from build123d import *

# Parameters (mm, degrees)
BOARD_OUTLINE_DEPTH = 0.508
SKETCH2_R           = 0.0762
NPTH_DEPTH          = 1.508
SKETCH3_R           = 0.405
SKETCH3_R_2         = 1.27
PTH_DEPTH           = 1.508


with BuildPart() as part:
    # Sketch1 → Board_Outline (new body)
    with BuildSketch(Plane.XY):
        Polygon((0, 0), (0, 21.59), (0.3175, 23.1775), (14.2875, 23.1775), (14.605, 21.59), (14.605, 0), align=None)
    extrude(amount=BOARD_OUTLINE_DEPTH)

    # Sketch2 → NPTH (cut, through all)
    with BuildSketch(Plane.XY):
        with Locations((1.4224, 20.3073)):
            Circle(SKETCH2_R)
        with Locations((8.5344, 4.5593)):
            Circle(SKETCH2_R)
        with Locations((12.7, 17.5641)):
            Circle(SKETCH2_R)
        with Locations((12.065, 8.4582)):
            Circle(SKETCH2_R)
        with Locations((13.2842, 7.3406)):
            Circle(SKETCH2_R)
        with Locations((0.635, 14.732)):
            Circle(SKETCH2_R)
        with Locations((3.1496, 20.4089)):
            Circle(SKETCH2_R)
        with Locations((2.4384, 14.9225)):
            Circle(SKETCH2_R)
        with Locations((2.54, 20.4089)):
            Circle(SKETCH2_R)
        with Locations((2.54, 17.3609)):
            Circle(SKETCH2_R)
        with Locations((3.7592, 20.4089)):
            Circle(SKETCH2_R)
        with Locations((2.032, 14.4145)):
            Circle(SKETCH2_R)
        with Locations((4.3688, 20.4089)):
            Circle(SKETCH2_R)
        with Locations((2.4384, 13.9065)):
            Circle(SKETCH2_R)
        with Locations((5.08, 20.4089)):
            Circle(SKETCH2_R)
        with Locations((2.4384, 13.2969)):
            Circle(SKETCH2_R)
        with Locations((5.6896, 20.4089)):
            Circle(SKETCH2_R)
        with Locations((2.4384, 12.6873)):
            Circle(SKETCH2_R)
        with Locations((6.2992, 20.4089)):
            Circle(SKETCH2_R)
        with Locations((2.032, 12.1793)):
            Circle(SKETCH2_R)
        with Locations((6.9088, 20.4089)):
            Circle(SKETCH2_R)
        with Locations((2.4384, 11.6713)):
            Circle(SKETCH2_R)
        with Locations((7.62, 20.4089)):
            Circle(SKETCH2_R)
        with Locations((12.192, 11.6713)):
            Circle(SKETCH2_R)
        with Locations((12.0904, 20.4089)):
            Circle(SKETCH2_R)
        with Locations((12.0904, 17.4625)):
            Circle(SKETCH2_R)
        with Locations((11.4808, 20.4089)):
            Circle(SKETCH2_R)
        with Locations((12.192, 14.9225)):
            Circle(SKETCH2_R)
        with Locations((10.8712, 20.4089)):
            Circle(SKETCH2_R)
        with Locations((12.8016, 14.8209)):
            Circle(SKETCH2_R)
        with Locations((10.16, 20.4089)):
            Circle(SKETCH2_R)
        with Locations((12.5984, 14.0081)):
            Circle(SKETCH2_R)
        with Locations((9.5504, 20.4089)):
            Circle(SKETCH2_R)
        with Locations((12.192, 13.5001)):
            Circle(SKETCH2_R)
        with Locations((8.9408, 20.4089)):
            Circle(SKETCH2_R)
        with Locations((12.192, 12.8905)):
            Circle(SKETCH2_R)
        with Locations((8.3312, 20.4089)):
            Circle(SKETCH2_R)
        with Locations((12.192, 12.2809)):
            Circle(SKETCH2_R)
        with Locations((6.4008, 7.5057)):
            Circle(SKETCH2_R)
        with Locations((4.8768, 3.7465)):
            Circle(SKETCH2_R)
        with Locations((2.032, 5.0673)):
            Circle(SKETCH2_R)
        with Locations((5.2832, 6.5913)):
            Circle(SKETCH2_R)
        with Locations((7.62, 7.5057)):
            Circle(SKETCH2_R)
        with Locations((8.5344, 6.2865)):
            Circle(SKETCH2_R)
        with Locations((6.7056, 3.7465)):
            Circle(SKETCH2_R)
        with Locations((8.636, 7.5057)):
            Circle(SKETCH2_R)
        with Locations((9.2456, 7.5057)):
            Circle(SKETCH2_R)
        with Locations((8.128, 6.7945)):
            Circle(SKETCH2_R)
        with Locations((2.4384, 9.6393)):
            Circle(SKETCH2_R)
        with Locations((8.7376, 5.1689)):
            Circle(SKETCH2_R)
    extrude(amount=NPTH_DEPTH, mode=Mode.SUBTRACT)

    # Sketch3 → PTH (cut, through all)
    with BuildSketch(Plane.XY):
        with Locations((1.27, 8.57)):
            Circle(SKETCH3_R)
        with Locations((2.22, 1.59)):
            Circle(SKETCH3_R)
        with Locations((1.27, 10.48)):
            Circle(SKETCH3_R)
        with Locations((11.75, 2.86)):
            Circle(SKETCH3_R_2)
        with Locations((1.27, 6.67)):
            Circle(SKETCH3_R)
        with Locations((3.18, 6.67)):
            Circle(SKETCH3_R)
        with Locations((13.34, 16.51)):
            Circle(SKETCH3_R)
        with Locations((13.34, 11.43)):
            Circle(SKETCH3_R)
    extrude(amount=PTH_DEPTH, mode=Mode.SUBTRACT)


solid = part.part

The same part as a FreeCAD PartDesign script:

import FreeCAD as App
import Part
import Sketcher
from FreeCAD import Vector
Q = App.Units.Quantity

doc = App.newDocument("Part")
body = doc.addObject("PartDesign::Body", "Body")

# Sketch on XY plane
sketch1 = body.newObject("Sketcher::SketchObject", "Sketch")
sketch1.AttachmentSupport = (doc.getObject("XY_Plane"), [""])
sketch1.MapMode = "FlatFace"
sketch1.addGeometry([
    Part.LineSegment(Vector(0, 21.59, 0), Vector(0, 0, 0)),  # 0
    Part.LineSegment(Vector(0, 0, 0), Vector(14.605, 0, 0)),  # 1
    Part.LineSegment(Vector(14.605, 0, 0), Vector(14.605, 21.59, 0)),  # 2
    Part.LineSegment(Vector(14.605, 21.59, 0), Vector(14.2875, 23.1775, 0)),  # 3
    Part.LineSegment(Vector(14.2875, 23.1775, 0), Vector(0.3175, 23.1775, 0)),  # 4
    Part.LineSegment(Vector(0.3175, 23.1775, 0), Vector(0, 21.59, 0)),  # 5
], False)
sketch1.addConstraint([
    Sketcher.Constraint("Coincident", 0, 2, 1, 1),
    Sketcher.Constraint("Coincident", 1, 2, 2, 1),
    Sketcher.Constraint("Coincident", 2, 2, 3, 1),
    Sketcher.Constraint("Coincident", 3, 2, 4, 1),
    Sketcher.Constraint("Coincident", 4, 2, 5, 1),
    Sketcher.Constraint("Coincident", 5, 2, 0, 1),
    Sketcher.Constraint("Vertical", 0),
    Sketcher.Constraint("Horizontal", 1),
    Sketcher.Constraint("Vertical", 2),
    Sketcher.Constraint("Horizontal", 4),
    Sketcher.Constraint("Coincident", 0, 2, -1, 1),
    Sketcher.Constraint("Horizontal", 2, 2, 5, 2),
    Sketcher.Constraint("Equal", 3, 5),
    Sketcher.Constraint("DistanceX", 4, 2, 4, 1, Q("0.55 in")),
    Sketcher.Constraint("DistanceY", 0, 2, 0, 1, Q("0.85 in")),
    Sketcher.Constraint("DistanceX", 1, 1, 1, 2, Q("0.575 in")),
    Sketcher.Constraint("DistanceY", 2, 2, 3, 2, Q("0.0625 in")),
])
pad1 = body.newObject("PartDesign::Pad", "Pad")
pad1.Profile = sketch1
pad1.Length = Q("0.02 in")

# Sketch on XY plane
sketch2 = body.newObject("Sketcher::SketchObject", "Sketch001")
sketch2.AttachmentSupport = (doc.getObject("XY_Plane"), [""])
sketch2.MapMode = "FlatFace"
sketch2.addGeometry([
    Part.Circle(Vector(1.4224, 20.3073, 0), Vector(0, 0, 1), 0.0762),  # 0
    Part.Circle(Vector(8.5344, 4.5593, 0), Vector(0, 0, 1), 0.0762),  # 1
    Part.Circle(Vector(12.7, 17.5641, 0), Vector(0, 0, 1), 0.0762),  # 2
    Part.Circle(Vector(12.065, 8.4582, 0), Vector(0, 0, 1), 0.0762),  # 3
    Part.Circle(Vector(13.2842, 7.3406, 0), Vector(0, 0, 1), 0.0762),  # 4
    Part.Circle(Vector(0.635, 14.732, 0), Vector(0, 0, 1), 0.0762),  # 5
    Part.Circle(Vector(3.1496, 20.4089, 0), Vector(0, 0, 1), 0.0762),  # 6
    Part.Circle(Vector(2.4384, 14.9225, 0), Vector(0, 0, 1), 0.0762),  # 7
    Part.Circle(Vector(2.54, 20.4089, 0), Vector(0, 0, 1), 0.0762),  # 8
    Part.Circle(Vector(2.54, 17.3609, 0), Vector(0, 0, 1), 0.0762),  # 9
    Part.Circle(Vector(3.7592, 20.4089, 0), Vector(0, 0, 1), 0.0762),  # 10
    Part.Circle(Vector(2.032, 14.4145, 0), Vector(0, 0, 1), 0.0762),  # 11
    Part.Circle(Vector(4.3688, 20.4089, 0), Vector(0, 0, 1), 0.0762),  # 12
    Part.Circle(Vector(2.4384, 13.9065, 0), Vector(0, 0, 1), 0.0762),  # 13
    Part.Circle(Vector(5.08, 20.4089, 0), Vector(0, 0, 1), 0.0762),  # 14
    Part.Circle(Vector(2.4384, 13.2969, 0), Vector(0, 0, 1), 0.0762),  # 15
    Part.Circle(Vector(5.6896, 20.4089, 0), Vector(0, 0, 1), 0.0762),  # 16
    Part.Circle(Vector(2.4384, 12.6873, 0), Vector(0, 0, 1), 0.0762),  # 17
    Part.Circle(Vector(6.2992, 20.4089, 0), Vector(0, 0, 1), 0.0762),  # 18
    Part.Circle(Vector(2.032, 12.1793, 0), Vector(0, 0, 1), 0.0762),  # 19
    Part.Circle(Vector(6.9088, 20.4089, 0), Vector(0, 0, 1), 0.0762),  # 20
    Part.Circle(Vector(2.4384, 11.6713, 0), Vector(0, 0, 1), 0.0762),  # 21
    Part.Circle(Vector(7.62, 20.4089, 0), Vector(0, 0, 1), 0.0762),  # 22
    Part.Circle(Vector(12.192, 11.6713, 0), Vector(0, 0, 1), 0.0762),  # 23
    Part.Circle(Vector(12.0904, 20.4089, 0), Vector(0, 0, 1), 0.0762),  # 24
    Part.Circle(Vector(12.0904, 17.4625, 0), Vector(0, 0, 1), 0.0762),  # 25
    Part.Circle(Vector(11.4808, 20.4089, 0), Vector(0, 0, 1), 0.0762),  # 26
    Part.Circle(Vector(12.192, 14.9225, 0), Vector(0, 0, 1), 0.0762),  # 27
    Part.Circle(Vector(10.8712, 20.4089, 0), Vector(0, 0, 1), 0.0762),  # 28
    Part.Circle(Vector(12.8016, 14.8209, 0), Vector(0, 0, 1), 0.0762),  # 29
    Part.Circle(Vector(10.16, 20.4089, 0), Vector(0, 0, 1), 0.0762),  # 30
    Part.Circle(Vector(12.5984, 14.0081, 0), Vector(0, 0, 1), 0.0762),  # 31
    Part.Circle(Vector(9.5504, 20.4089, 0), Vector(0, 0, 1), 0.0762),  # 32
    Part.Circle(Vector(12.192, 13.5001, 0), Vector(0, 0, 1), 0.0762),  # 33
    Part.Circle(Vector(8.9408, 20.4089, 0), Vector(0, 0, 1), 0.0762),  # 34
    Part.Circle(Vector(12.192, 12.8905, 0), Vector(0, 0, 1), 0.0762),  # 35
    Part.Circle(Vector(8.3312, 20.4089, 0), Vector(0, 0, 1), 0.0762),  # 36
    Part.Circle(Vector(12.192, 12.2809, 0), Vector(0, 0, 1), 0.0762),  # 37
    Part.Circle(Vector(6.4008, 7.5057, 0), Vector(0, 0, 1), 0.0762),  # 38
    Part.Circle(Vector(4.8768, 3.7465, 0), Vector(0, 0, 1), 0.0762),  # 39
    Part.Circle(Vector(2.032, 5.0673, 0), Vector(0, 0, 1), 0.0762),  # 40
    Part.Circle(Vector(5.2832, 6.5913, 0), Vector(0, 0, 1), 0.0762),  # 41
    Part.Circle(Vector(7.62, 7.5057, 0), Vector(0, 0, 1), 0.0762),  # 42
    Part.Circle(Vector(8.5344, 6.2865, 0), Vector(0, 0, 1), 0.0762),  # 43
    Part.Circle(Vector(6.7056, 3.7465, 0), Vector(0, 0, 1), 0.0762),  # 44
    Part.Circle(Vector(8.636, 7.5057, 0), Vector(0, 0, 1), 0.0762),  # 45
    Part.Circle(Vector(9.2456, 7.5057, 0), Vector(0, 0, 1), 0.0762),  # 46
    Part.Circle(Vector(8.128, 6.7945, 0), Vector(0, 0, 1), 0.0762),  # 47
    Part.Circle(Vector(2.4384, 9.6393, 0), Vector(0, 0, 1), 0.0762),  # 48
    Part.Circle(Vector(8.7376, 5.1689, 0), Vector(0, 0, 1), 0.0762),  # 49
], False)
sketch2.addConstraint([
    Sketcher.Constraint("Equal", 0, 1),
    Sketcher.Constraint("Equal", 1, 2),
    Sketcher.Constraint("Equal", 2, 3),
    Sketcher.Constraint("Equal", 3, 4),
    Sketcher.Constraint("Equal", 4, 5),
    Sketcher.Constraint("Equal", 5, 6),
    Sketcher.Constraint("Equal", 6, 7),
    Sketcher.Constraint("Equal", 7, 8),
    Sketcher.Constraint("Equal", 8, 9),
    Sketcher.Constraint("Equal", 9, 10),
    Sketcher.Constraint("Equal", 10, 11),
    Sketcher.Constraint("Equal", 11, 12),
    Sketcher.Constraint("Equal", 12, 13),
    Sketcher.Constraint("Equal", 13, 14),
    Sketcher.Constraint("Equal", 14, 15),
    Sketcher.Constraint("Equal", 15, 16),
    Sketcher.Constraint("Equal", 16, 17),
    Sketcher.Constraint("Equal", 17, 18),
    Sketcher.Constraint("Equal", 18, 19),
    Sketcher.Constraint("Equal", 19, 20),
    Sketcher.Constraint("Equal", 20, 21),
    Sketcher.Constraint("Equal", 21, 22),
    Sketcher.Constraint("Equal", 22, 23),
    Sketcher.Constraint("Equal", 23, 24),
    Sketcher.Constraint("Equal", 24, 25),
    Sketcher.Constraint("Equal", 25, 26),
    Sketcher.Constraint("Equal", 26, 27),
    Sketcher.Constraint("Equal", 27, 28),
    Sketcher.Constraint("Equal", 28, 29),
    Sketcher.Constraint("Equal", 29, 30),
    Sketcher.Constraint("Equal", 30, 31),
    Sketcher.Constraint("Equal", 31, 32),
    Sketcher.Constraint("Equal", 32, 33),
    Sketcher.Constraint("Equal", 33, 34),
    Sketcher.Constraint("Equal", 34, 35),
    Sketcher.Constraint("Equal", 35, 36),
    Sketcher.Constraint("Equal", 36, 37),
    Sketcher.Constraint("Equal", 37, 38),
    Sketcher.Constraint("Equal", 38, 39),
    Sketcher.Constraint("Equal", 39, 40),
    Sketcher.Constraint("Equal", 40, 41),
    Sketcher.Constraint("Equal", 41, 42),
    Sketcher.Constraint("Equal", 42, 43),
    Sketcher.Constraint("Equal", 43, 44),
    Sketcher.Constraint("Equal", 44, 45),
    Sketcher.Constraint("Equal", 45, 46),
    Sketcher.Constraint("Equal", 46, 47),
    Sketcher.Constraint("Equal", 47, 48),
    Sketcher.Constraint("Equal", 48, 49),
    Sketcher.Constraint("Horizontal", 6, 3, 8, 3),
    Sketcher.Constraint("Horizontal", 8, 3, 10, 3),
    Sketcher.Constraint("Horizontal", 10, 3, 12, 3),
    Sketcher.Constraint("Horizontal", 12, 3, 14, 3),
    Sketcher.Constraint("Horizontal", 14, 3, 16, 3),
    Sketcher.Constraint("Horizontal", 16, 3, 18, 3),
    Sketcher.Constraint("Horizontal", 18, 3, 20, 3),
    Sketcher.Constraint("Horizontal", 20, 3, 22, 3),
    Sketcher.Constraint("Horizontal", 21, 3, 23, 3),
    Sketcher.Constraint("Horizontal", 22, 3, 24, 3),
    Sketcher.Constraint("Horizontal", 24, 3, 26, 3),
    Sketcher.Constraint("Horizontal", 7, 3, 27, 3),
    Sketcher.Constraint("Horizontal", 26, 3, 28, 3),
    Sketcher.Constraint("Horizontal", 28, 3, 30, 3),
    Sketcher.Constraint("Horizontal", 30, 3, 32, 3),
    Sketcher.Constraint("Horizontal", 32, 3, 34, 3),
    Sketcher.Constraint("Horizontal", 34, 3, 36, 3),
    Sketcher.Constraint("Horizontal", 38, 3, 42, 3),
    Sketcher.Constraint("Horizontal", 39, 3, 44, 3),
    Sketcher.Constraint("Horizontal", 42, 3, 45, 3),
    Sketcher.Constraint("Horizontal", 45, 3, 46, 3),
    Sketcher.Constraint("Vertical", 8, 3, 9, 3),
    Sketcher.Constraint("Vertical", 7, 3, 13, 3),
    Sketcher.Constraint("Vertical", 13, 3, 15, 3),
    Sketcher.Constraint("Vertical", 15, 3, 17, 3),
    Sketcher.Constraint("Vertical", 11, 3, 19, 3),
    Sketcher.Constraint("Vertical", 17, 3, 21, 3),
    Sketcher.Constraint("Vertical", 24, 3, 25, 3),
    Sketcher.Constraint("Vertical", 23, 3, 27, 3),
    Sketcher.Constraint("Vertical", 27, 3, 33, 3),
    Sketcher.Constraint("Vertical", 33, 3, 35, 3),
    Sketcher.Constraint("Vertical", 35, 3, 37, 3),
    Sketcher.Constraint("Vertical", 19, 3, 40, 3),
    Sketcher.Constraint("Vertical", 22, 3, 42, 3),
    Sketcher.Constraint("Vertical", 1, 3, 43, 3),
    Sketcher.Constraint("Vertical", 21, 3, 48, 3),
    Sketcher.Constraint("Diameter", 0, Q("0.006 in")),
    Sketcher.Constraint("DistanceX", -1, 1, 2, 3, Q("0.5 in")),
    Sketcher.Constraint("DistanceX", -1, 1, 8, 3, Q("0.1 in")),
    Sketcher.Constraint("DistanceX", -1, 1, 14, 3, Q("0.2 in")),
    Sketcher.Constraint("DistanceX", -1, 1, 22, 3, Q("0.3 in")),
    Sketcher.Constraint("DistanceX", -1, 1, 30, 3, Q("0.4 in")),
    Sketcher.Constraint("DistanceX", 6, 3, 16, 3, Q("0.1 in")),
    Sketcher.Constraint("DistanceX", 10, 3, 18, 3, Q("0.1 in")),
    Sketcher.Constraint("DistanceX", 12, 3, 20, 3, Q("0.1 in")),
    Sketcher.Constraint("DistanceY", 27, 3, 25, 3, Q("0.1 in")),
    Sketcher.Constraint("DistanceX", 32, 3, 24, 3, Q("0.1 in")),
    Sketcher.Constraint("DistanceY", 37, 3, 29, 3, Q("0.1 in")),
    Sketcher.Constraint("DistanceY", 41, 3, 21, 3, Q("0.2 in")),
    Sketcher.Constraint("DistanceY", 44, 3, 43, 3, Q("0.1 in")),
    Sketcher.Constraint("DistanceY", 48, 3, 19, 3, Q("0.1 in")),
    Sketcher.Constraint("DistanceY", -1, 1, 5, 3, Q("0.58 in")),
    Sketcher.Constraint("DistanceX", -1, 1, 11, 3, Q("0.08 in")),
    Sketcher.Constraint("DistanceX", -1, 1, 23, 3, Q("0.48 in")),
    Sketcher.Constraint("DistanceX", -1, 1, 45, 3, Q("0.34 in")),
    Sketcher.Constraint("DistanceX", -1, 1, 47, 3, Q("0.32 in")),
    Sketcher.Constraint("DistanceX", 0, 3, 1, 3, Q("0.28 in")),
    Sketcher.Constraint("DistanceY", 1, 3, 0, 3, Q("0.62 in")),
    Sketcher.Constraint("DistanceX", 5, 3, 3, 3, Q("0.45 in")),
    Sketcher.Constraint("DistanceX", 0, 3, 7, 3, Q("0.04 in")),
    Sketcher.Constraint("DistanceY", 9, 3, 8, 3, Q("0.12 in")),
    Sketcher.Constraint("DistanceY", 11, 3, 7, 3, Q("0.02 in")),
    Sketcher.Constraint("DistanceY", 13, 3, 11, 3, Q("0.02 in")),
    Sketcher.Constraint("DistanceY", 15, 3, 9, 3, Q("0.16 in")),
    Sketcher.Constraint("DistanceY", 19, 3, 17, 3, Q("0.02 in")),
    Sketcher.Constraint("DistanceY", 21, 3, 19, 3, Q("0.02 in")),
    Sketcher.Constraint("DistanceY", 1, 3, 23, 3, Q("0.28 in")),
    Sketcher.Constraint("DistanceX", 20, 3, 26, 3, Q("0.18 in")),
    Sketcher.Constraint("DistanceY", 29, 3, 24, 3, Q("0.22 in")),
    Sketcher.Constraint("DistanceX", 25, 3, 31, 3, Q("0.02 in")),
    Sketcher.Constraint("DistanceY", 31, 3, 2, 3, Q("0.14 in")),
    Sketcher.Constraint("DistanceY", 33, 3, 31, 3, Q("0.02 in")),
    Sketcher.Constraint("DistanceX", 20, 3, 34, 3, Q("0.08 in")),
    Sketcher.Constraint("DistanceY", 35, 3, 27, 3, Q("0.08 in")),
    Sketcher.Constraint("DistanceX", 39, 3, 38, 3, Q("0.06 in")),
    Sketcher.Constraint("DistanceY", 1, 3, 40, 3, Q("0.02 in")),
    Sketcher.Constraint("DistanceY", 43, 3, 47, 3, Q("0.02 in")),
    Sketcher.Constraint("DistanceX", 49, 3, 46, 3, Q("0.02 in")),
    Sketcher.Constraint("DistanceX", -1, 1, 0, 3, Q("0.056 in")),
    Sketcher.Constraint("DistanceX", -1, 1, 3, 3, Q("0.475 in")),
    Sketcher.Constraint("DistanceY", -1, 1, 3, 3, Q("0.333 in")),
    Sketcher.Constraint("DistanceX", -1, 1, 4, 3, Q("0.523 in")),
    Sketcher.Constraint("DistanceY", -1, 1, 4, 3, Q("0.289 in")),
    Sketcher.Constraint("DistanceX", -1, 1, 6, 3, Q("0.124 in")),
    Sketcher.Constraint("DistanceX", -1, 1, 10, 3, Q("0.148 in")),
    Sketcher.Constraint("DistanceX", -1, 1, 12, 3, Q("0.172 in")),
    Sketcher.Constraint("DistanceX", -1, 1, 24, 3, Q("0.476 in")),
    Sketcher.Constraint("DistanceY", -1, 1, 25, 3, Q("0.6875 in")),
    Sketcher.Constraint("DistanceX", -1, 1, 28, 3, Q("0.428 in")),
    Sketcher.Constraint("DistanceX", -1, 1, 29, 3, Q("0.504 in")),
    Sketcher.Constraint("DistanceX", -1, 1, 36, 3, Q("0.328 in")),
    Sketcher.Constraint("DistanceX", -1, 1, 38, 3, Q("0.252 in")),
    Sketcher.Constraint("DistanceX", -1, 1, 41, 3, Q("0.208 in")),
    Sketcher.Constraint("DistanceX", -1, 1, 44, 3, Q("0.264 in")),
    Sketcher.Constraint("DistanceX", -1, 1, 46, 3, Q("0.364 in")),
    Sketcher.Constraint("DistanceY", 2, 3, 0, 3, Q("0.108 in")),
    Sketcher.Constraint("DistanceY", 0, 3, 6, 3, Q("0.004 in")),
    Sketcher.Constraint("DistanceY", 7, 3, 0, 3, Q("0.212 in")),
    Sketcher.Constraint("DistanceY", 1, 3, 38, 3, Q("0.116 in")),
    Sketcher.Constraint("DistanceY", 39, 3, 1, 3, Q("0.032 in")),
    Sketcher.Constraint("DistanceY", 1, 3, 49, 3, Q("0.024 in")),
])
pocket1 = body.newObject("PartDesign::Pocket", "Pocket")
pocket1.Profile = sketch2
pocket1.Type = "ThroughAll"
pocket1.Reversed = True

# Sketch on XY plane
sketch3 = body.newObject("Sketcher::SketchObject", "Sketch002")
sketch3.AttachmentSupport = (doc.getObject("XY_Plane"), [""])
sketch3.MapMode = "FlatFace"
sketch3.addGeometry([
    Part.Circle(Vector(1.27, 8.57, 0), Vector(0, 0, 1), 0.405),  # 0
    Part.Circle(Vector(2.22, 1.59, 0), Vector(0, 0, 1), 0.405),  # 1
    Part.Circle(Vector(1.27, 10.48, 0), Vector(0, 0, 1), 0.405),  # 2
    Part.Circle(Vector(11.75, 2.86, 0), Vector(0, 0, 1), 1.27),  # 3
    Part.Circle(Vector(1.27, 6.67, 0), Vector(0, 0, 1), 0.405),  # 4
    Part.Circle(Vector(3.18, 6.67, 0), Vector(0, 0, 1), 0.405),  # 5
    Part.Circle(Vector(13.34, 16.51, 0), Vector(0, 0, 1), 0.405),  # 6
    Part.Circle(Vector(13.34, 11.43, 0), Vector(0, 0, 1), 0.405),  # 7
], False)
sketch3.addConstraint([
    Sketcher.Constraint("Equal", 0, 1),
    Sketcher.Constraint("Equal", 1, 2),
    Sketcher.Constraint("Equal", 2, 4),
    Sketcher.Constraint("Equal", 4, 5),
    Sketcher.Constraint("Equal", 5, 6),
    Sketcher.Constraint("Equal", 6, 7),
    Sketcher.Constraint("Horizontal", 4, 3, 5, 3),
    Sketcher.Constraint("Vertical", 0, 3, 2, 3),
    Sketcher.Constraint("Vertical", 2, 3, 4, 3),
    Sketcher.Constraint("Vertical", 6, 3, 7, 3),
    Sketcher.Constraint("Diameter", 3, Q("0.1 in")),
    Sketcher.Constraint("DistanceY", 3, 3, 2, 3, Q("0.3 in")),
    Sketcher.Constraint("DistanceY", 1, 3, 4, 3, Q("0.2 in")),
    Sketcher.Constraint("DistanceX", 5, 3, 6, 3, Q("0.4 in")),
    Sketcher.Constraint("DistanceY", 7, 3, 6, 3, Q("0.2 in")),
    Sketcher.Constraint("Diameter", 0, 0.81),
    Sketcher.Constraint("DistanceX", -1, 1, 0, 3, Q("0.05 in")),
    Sketcher.Constraint("DistanceY", -1, 1, 6, 3, Q("0.65 in")),
    Sketcher.Constraint("DistanceY", 1, 3, 2, 3, Q("0.35 in")),
    Sketcher.Constraint("DistanceY", -1, 1, 0, 3, 8.57),
    Sketcher.Constraint("DistanceX", -1, 1, 1, 3, 2.22),
    Sketcher.Constraint("DistanceY", -1, 1, 1, 3, 1.59),
    Sketcher.Constraint("DistanceX", -1, 1, 3, 3, 11.75),
    Sketcher.Constraint("DistanceX", -1, 1, 5, 3, 3.18),
])
pocket2 = body.newObject("PartDesign::Pocket", "Pocket001")
pocket2.Profile = sketch3
pocket2.Type = "ThroughAll"
pocket2.Reversed = True

doc.recompute()
